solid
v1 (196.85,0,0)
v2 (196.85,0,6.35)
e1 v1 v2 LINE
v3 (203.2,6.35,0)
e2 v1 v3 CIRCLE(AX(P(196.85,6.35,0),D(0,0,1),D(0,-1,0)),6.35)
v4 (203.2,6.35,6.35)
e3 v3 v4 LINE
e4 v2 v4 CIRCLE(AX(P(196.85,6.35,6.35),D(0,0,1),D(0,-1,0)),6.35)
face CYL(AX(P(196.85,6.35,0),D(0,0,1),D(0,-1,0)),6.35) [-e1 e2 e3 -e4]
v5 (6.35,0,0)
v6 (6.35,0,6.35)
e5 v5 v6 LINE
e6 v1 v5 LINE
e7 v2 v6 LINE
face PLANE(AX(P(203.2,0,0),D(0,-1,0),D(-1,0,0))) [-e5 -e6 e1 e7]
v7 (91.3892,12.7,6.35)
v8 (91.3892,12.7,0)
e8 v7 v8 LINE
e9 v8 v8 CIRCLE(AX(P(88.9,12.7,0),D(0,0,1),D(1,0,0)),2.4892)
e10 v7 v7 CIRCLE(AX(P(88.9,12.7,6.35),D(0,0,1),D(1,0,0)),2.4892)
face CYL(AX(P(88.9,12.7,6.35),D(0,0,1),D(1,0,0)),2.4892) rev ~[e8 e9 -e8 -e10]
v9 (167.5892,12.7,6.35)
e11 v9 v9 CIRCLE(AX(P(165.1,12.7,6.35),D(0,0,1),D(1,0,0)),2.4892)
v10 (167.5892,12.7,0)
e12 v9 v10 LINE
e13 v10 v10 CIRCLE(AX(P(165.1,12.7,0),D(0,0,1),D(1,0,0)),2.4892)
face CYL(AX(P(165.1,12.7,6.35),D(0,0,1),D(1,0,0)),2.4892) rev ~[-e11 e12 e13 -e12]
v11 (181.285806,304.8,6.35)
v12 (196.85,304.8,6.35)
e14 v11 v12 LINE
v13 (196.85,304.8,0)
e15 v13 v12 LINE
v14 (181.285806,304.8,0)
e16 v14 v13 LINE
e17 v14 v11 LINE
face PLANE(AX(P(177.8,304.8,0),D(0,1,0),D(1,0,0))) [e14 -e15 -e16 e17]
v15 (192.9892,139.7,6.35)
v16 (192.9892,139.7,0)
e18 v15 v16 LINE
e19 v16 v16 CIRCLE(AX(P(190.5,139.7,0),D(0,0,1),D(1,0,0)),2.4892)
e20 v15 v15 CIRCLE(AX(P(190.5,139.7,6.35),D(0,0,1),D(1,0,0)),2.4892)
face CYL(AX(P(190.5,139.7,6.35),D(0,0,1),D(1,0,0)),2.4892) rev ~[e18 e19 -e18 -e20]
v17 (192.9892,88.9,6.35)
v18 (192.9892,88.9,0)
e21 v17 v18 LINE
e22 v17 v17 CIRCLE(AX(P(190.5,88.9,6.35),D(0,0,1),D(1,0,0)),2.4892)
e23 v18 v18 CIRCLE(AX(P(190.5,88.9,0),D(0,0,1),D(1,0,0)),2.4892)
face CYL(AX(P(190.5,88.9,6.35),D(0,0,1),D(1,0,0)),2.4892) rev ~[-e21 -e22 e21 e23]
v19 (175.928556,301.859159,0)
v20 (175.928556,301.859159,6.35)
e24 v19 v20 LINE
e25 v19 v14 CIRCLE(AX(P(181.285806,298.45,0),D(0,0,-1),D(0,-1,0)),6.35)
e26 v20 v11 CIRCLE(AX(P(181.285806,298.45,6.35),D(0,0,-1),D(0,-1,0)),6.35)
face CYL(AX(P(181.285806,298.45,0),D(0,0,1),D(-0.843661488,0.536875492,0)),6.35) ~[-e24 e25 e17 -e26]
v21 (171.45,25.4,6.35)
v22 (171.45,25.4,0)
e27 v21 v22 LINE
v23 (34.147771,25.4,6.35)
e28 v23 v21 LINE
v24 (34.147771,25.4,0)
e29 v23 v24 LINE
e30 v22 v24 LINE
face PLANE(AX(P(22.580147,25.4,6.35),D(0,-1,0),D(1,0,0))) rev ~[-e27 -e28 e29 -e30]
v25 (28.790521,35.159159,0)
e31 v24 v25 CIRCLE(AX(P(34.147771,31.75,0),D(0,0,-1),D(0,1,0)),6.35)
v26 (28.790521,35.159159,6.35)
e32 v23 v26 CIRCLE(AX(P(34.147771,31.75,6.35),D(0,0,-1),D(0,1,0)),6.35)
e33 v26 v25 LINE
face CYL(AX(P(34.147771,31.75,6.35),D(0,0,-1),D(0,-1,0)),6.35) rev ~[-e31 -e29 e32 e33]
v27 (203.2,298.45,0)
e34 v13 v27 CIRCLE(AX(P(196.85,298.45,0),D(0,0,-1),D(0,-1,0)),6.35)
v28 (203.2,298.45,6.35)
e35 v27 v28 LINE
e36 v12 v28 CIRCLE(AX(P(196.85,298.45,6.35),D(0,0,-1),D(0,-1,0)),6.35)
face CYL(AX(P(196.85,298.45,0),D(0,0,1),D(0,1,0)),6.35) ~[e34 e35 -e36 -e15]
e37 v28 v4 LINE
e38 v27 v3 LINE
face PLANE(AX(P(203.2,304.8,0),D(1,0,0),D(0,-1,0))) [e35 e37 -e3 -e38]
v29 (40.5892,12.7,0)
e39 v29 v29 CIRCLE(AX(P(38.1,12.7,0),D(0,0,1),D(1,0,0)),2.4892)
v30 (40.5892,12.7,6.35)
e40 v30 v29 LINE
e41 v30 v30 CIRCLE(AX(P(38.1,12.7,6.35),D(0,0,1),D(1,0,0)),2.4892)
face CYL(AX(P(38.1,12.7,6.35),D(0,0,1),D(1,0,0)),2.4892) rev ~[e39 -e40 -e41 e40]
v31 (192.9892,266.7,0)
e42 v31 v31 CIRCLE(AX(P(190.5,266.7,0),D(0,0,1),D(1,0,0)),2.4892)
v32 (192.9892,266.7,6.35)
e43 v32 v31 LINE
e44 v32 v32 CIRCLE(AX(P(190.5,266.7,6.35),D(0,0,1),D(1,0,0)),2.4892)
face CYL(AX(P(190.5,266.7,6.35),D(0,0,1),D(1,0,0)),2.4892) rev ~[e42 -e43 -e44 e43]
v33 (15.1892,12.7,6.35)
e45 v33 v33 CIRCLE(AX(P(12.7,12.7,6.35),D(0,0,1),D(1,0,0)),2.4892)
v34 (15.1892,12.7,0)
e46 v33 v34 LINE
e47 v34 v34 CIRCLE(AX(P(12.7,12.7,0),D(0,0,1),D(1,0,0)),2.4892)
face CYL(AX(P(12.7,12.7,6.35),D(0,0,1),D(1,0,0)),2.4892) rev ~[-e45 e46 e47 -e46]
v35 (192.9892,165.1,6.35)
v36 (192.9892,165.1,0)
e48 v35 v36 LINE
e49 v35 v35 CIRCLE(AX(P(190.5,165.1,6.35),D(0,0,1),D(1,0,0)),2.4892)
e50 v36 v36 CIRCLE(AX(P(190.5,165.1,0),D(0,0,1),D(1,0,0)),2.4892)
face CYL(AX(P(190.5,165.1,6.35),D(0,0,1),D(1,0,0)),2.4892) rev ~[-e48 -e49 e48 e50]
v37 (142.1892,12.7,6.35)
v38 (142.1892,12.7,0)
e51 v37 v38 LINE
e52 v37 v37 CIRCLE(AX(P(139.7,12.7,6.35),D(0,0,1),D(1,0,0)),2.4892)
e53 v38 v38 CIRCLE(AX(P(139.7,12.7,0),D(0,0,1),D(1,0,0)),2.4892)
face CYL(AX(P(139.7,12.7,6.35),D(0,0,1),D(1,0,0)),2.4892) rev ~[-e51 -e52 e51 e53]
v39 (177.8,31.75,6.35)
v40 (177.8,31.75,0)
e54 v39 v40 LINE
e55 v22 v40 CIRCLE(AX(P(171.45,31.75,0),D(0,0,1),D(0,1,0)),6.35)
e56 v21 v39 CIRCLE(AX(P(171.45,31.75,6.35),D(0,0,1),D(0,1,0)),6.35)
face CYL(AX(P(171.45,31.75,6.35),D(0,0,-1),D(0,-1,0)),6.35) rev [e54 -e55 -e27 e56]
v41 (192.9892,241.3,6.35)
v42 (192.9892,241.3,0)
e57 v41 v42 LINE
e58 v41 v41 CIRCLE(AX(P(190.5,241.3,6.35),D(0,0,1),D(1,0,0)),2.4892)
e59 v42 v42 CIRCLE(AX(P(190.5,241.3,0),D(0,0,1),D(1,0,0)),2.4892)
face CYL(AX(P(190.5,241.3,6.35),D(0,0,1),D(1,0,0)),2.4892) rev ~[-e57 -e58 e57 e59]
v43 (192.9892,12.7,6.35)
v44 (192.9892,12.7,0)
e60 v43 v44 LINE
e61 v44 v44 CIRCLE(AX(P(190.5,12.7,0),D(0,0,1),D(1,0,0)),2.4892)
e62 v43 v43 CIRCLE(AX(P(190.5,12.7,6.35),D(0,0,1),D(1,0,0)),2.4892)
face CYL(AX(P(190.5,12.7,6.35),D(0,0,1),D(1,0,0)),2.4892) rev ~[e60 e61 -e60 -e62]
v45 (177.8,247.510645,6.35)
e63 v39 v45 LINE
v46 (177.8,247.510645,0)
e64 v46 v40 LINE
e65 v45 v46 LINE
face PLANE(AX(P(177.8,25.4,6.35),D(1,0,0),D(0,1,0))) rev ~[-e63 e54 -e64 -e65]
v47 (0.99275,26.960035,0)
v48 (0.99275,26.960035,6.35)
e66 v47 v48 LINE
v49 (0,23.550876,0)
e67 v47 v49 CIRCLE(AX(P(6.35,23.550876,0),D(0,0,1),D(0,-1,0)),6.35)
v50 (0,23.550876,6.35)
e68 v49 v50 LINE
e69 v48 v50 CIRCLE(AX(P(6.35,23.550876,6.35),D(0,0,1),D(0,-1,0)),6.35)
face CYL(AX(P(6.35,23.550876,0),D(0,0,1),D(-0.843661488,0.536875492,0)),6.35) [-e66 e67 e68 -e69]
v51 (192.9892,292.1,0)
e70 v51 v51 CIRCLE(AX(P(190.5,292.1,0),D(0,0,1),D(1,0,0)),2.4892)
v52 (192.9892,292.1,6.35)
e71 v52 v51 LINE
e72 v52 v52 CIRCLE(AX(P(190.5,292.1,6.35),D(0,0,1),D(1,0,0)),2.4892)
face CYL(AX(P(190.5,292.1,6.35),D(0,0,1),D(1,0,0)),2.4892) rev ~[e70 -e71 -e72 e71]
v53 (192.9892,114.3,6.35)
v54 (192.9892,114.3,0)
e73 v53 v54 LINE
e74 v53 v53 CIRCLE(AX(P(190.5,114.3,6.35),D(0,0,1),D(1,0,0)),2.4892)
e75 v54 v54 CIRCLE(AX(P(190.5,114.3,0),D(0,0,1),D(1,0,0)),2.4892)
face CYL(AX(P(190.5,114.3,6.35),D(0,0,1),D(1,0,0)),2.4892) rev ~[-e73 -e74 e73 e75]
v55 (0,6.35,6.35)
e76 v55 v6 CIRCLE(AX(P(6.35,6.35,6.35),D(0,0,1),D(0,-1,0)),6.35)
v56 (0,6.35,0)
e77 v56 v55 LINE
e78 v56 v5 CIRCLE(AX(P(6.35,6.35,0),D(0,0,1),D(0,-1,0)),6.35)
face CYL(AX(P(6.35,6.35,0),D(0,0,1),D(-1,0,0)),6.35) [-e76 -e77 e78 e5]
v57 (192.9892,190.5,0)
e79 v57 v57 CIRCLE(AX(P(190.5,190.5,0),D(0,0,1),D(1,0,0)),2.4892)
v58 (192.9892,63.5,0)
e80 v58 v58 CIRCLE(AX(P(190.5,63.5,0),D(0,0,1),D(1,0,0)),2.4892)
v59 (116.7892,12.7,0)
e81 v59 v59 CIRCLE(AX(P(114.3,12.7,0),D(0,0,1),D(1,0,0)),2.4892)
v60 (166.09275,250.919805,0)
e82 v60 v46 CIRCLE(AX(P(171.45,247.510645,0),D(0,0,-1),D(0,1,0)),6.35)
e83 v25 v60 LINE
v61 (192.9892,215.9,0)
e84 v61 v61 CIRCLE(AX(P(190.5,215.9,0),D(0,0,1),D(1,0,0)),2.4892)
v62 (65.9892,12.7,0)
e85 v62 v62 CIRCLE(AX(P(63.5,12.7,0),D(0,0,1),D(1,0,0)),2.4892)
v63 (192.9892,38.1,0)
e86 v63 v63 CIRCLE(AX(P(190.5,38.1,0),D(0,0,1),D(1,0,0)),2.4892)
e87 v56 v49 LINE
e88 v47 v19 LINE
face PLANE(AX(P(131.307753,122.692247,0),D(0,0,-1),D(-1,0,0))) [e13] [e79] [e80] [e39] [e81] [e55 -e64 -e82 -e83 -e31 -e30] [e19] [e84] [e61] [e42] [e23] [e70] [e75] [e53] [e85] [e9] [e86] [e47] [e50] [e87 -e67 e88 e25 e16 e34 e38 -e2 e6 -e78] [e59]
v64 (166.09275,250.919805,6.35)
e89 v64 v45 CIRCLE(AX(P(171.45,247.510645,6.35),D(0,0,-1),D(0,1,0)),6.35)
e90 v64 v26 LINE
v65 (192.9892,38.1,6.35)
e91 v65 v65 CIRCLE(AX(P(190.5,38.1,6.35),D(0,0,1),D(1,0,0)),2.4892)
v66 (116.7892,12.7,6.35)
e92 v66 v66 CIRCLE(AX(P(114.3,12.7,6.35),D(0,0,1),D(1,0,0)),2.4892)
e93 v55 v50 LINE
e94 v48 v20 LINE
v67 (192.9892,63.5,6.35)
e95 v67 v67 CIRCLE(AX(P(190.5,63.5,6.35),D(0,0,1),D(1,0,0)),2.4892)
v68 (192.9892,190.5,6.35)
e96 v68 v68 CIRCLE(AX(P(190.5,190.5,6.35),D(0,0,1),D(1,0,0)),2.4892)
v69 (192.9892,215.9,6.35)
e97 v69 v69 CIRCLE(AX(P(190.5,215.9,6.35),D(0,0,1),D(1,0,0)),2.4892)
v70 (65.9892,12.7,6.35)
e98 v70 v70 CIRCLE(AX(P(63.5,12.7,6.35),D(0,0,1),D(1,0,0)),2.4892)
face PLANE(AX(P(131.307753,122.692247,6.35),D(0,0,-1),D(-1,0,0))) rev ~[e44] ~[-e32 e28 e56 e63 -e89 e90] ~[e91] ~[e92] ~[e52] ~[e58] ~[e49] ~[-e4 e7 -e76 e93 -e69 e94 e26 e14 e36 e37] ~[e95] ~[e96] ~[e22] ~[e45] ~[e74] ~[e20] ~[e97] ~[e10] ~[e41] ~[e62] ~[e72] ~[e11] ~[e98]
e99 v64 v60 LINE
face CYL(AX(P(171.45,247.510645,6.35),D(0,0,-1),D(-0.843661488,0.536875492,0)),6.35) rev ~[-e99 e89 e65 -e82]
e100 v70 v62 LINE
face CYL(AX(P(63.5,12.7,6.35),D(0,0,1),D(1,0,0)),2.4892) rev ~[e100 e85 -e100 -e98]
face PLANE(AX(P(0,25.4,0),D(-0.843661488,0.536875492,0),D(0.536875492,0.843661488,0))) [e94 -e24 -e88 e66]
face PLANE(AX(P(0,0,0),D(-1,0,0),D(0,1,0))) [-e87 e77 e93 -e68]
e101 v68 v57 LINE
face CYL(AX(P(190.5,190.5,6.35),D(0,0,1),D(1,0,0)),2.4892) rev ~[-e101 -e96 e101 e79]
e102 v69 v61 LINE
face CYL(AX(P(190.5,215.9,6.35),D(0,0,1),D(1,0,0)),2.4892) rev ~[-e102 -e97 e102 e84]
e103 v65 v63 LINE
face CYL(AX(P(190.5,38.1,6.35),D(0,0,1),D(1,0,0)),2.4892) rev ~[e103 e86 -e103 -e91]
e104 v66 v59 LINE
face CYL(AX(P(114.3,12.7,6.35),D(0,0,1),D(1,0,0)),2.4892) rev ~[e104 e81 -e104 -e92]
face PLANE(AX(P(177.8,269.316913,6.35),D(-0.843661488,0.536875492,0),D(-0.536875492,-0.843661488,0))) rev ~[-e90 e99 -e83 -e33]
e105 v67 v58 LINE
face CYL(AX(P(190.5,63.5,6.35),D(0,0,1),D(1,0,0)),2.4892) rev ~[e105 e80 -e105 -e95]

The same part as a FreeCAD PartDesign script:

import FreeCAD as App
import Part
import Sketcher

V = App.Vector
Q = App.Units.Quantity


def edges_at(feature, points):
    """Names of the edges that pass closest to the given points."""
    edges = feature.Shape.Edges
    near = lambda p: min(range(len(edges)), key=lambda i: edges[i].distToShape(Part.Vertex(*p))[0])
    return sorted({f"Edge{near(p) + 1}" for p in points})


def add_polygon(sketch, points):
    """Adds a closed chain of lines whose ends are joined by coincident constraints."""
    first, n = sketch.GeometryCount, len(points)
    for a, b in zip(points, points[1:] + points[:1]):
        sketch.addGeometry(Part.LineSegment(App.Vector(*a, 0), App.Vector(*b, 0)), False)
    for i in range(n):
        sketch.addConstraint(Sketcher.Constraint("Coincident", first + i, 2, first + (i + 1) % n, 1))

doc = App.newDocument("Part")
body = doc.addObject("PartDesign::Body", "Body")

# Sketch on XY plane
sketch1 = body.newObject("Sketcher::SketchObject", "Sketch")
sketch1.AttachmentSupport = (doc.getObject("XY_Plane"), [""])
sketch1.MapMode = "FlatFace"
add_polygon(sketch1, [(177.8, 304.8), (0, 25.4), (0, 0), (203.2, 0), (203.2, 304.8)])  # lines 0-4
sketch1.addConstraint(Sketcher.Constraint("Vertical", 1))
sketch1.addConstraint(Sketcher.Constraint("Horizontal", 2))
sketch1.addConstraint(Sketcher.Constraint("Vertical", 3))
sketch1.addConstraint(Sketcher.Constraint("Horizontal", 4))
sketch1.addConstraint(Sketcher.Constraint("Coincident", 1, 2, -1, 1))
sketch1.addConstraint(Sketcher.Constraint("Equal", 4, 1))
sketch1.addConstraint(Sketcher.Constraint("DistanceX", 2, 1, 2, 2, Q("8 in")))
sketch1.addConstraint(Sketcher.Constraint("DistanceX", 4, 2, 4, 1, Q("1 in")))
sketch1.addConstraint(Sketcher.Constraint("DistanceY", 3, 1, 3, 2, Q("12 in")))
pad1 = body.newObject("PartDesign::Pad", "Pad")
pad1.Profile = sketch1
pad1.Length = Q("0.25 in")

# Sketch on XY plane
sketch2 = body.newObject("Sketcher::SketchObject", "Sketch001")
sketch2.AttachmentSupport = (doc.getObject("XY_Plane"), [""])
sketch2.MapMode = "FlatFace"
sketch2.AttachmentOffset = App.Placement(V(0, 0, 0.25 * 25.4), App.Rotation())
sketch2.addGeometry(Part.Circle(V(190.5, 12.7, 0), V(0, 0, 1), 2.4892), False)  # 0
sketch2.addGeometry(Part.Circle(V(165.1, 12.7, 0), V(0, 0, 1), 2.4892), False)  # 1
sketch2.addGeometry(Part.Circle(V(139.7, 12.7, 0), V(0, 0, 1), 2.4892), False)  # 2
sketch2.addGeometry(Part.Circle(V(114.3, 12.7, 0), V(0, 0, 1), 2.4892), False)  # 3
sketch2.addGeometry(Part.Circle(V(88.9, 12.7, 0), V(0, 0, 1), 2.4892), False)  # 4
sketch2.addGeometry(Part.Circle(V(63.5, 12.7, 0), V(0, 0, 1), 2.4892), False)  # 5
sketch2.addGeometry(Part.Circle(V(38.1, 12.7, 0), V(0, 0, 1), 2.4892), False)  # 6
sketch2.addGeometry(Part.Circle(V(190.5, 38.1, 0), V(0, 0, 1), 2.4892), False)  # 7
sketch2.addGeometry(Part.Circle(V(190.5, 63.5, 0), V(0, 0, 1), 2.4892), False)  # 8
sketch2.addGeometry(Part.Circle(V(190.5, 88.9, 0), V(0, 0, 1), 2.4892), False)  # 9
sketch2.addGeometry(Part.Circle(V(190.5, 114.3, 0), V(0, 0, 1), 2.4892), False)  # 10
sketch2.addGeometry(Part.Circle(V(190.5, 139.7, 0), V(0, 0, 1), 2.4892), False)  # 11
sketch2.addGeometry(Part.Circle(V(190.5, 165.1, 0), V(0, 0, 1), 2.4892), False)  # 12
sketch2.addGeometry(Part.Circle(V(190.5, 190.5, 0), V(0, 0, 1), 2.4892), False)  # 13
sketch2.addGeometry(Part.Circle(V(190.5, 215.9, 0), V(0, 0, 1), 2.4892), False)  # 14
sketch2.addGeometry(Part.Circle(V(190.5, 241.3, 0), V(0, 0, 1), 2.4892), False)  # 15
sketch2.addGeometry(Part.Circle(V(190.5, 266.7, 0), V(0, 0, 1), 2.4892), False)  # 16
sketch2.addGeometry(Part.Circle(V(190.5, 292.1, 0), V(0, 0, 1), 2.4892), False)  # 17
sketch2.addGeometry(Part.Circle(V(12.7, 12.7, 0), V(0, 0, 1), 2.4892), False)  # 18
add_polygon(sketch2, [(22.580147, 25.4), (177.8, 25.4), (177.8, 269.316913)])  # lines 19-21
sketch2.addConstraint(Sketcher.Constraint("Horizontal", 19))
sketch2.addConstraint(Sketcher.Constraint("Vertical", 20))
sketch2.addConstraint(Sketcher.Constraint("Equal", 0, 1))
sketch2.addConstraint(Sketcher.Constraint("Equal", 1, 2))
sketch2.addConstraint(Sketcher.Constraint("Equal", 2, 3))
sketch2.addConstraint(Sketcher.Constraint("Equal", 3, 4))
sketch2.addConstraint(Sketcher.Constraint("Equal", 4, 5))
sketch2.addConstraint(Sketcher.Constraint("Equal", 5, 6))
sketch2.addConstraint(Sketcher.Constraint("Equal", 6, 7))
sketch2.addConstraint(Sketcher.Constraint("Equal", 7, 8))
sketch2.addConstraint(Sketcher.Constraint("Equal", 8, 9))
sketch2.addConstraint(Sketcher.Constraint("Equal", 9, 10))
sketch2.addConstraint(Sketcher.Constraint("Equal", 10, 11))
sketch2.addConstraint(Sketcher.Constraint("Equal", 11, 12))
sketch2.addConstraint(Sketcher.Constraint("Equal", 12, 13))
sketch2.addConstraint(Sketcher.Constraint("Equal", 13, 14))
sketch2.addConstraint(Sketcher.Constraint("Equal", 14, 15))
sketch2.addConstraint(Sketcher.Constraint("Equal", 15, 16))
sketch2.addConstraint(Sketcher.Constraint("Equal", 16, 17))
sketch2.addConstraint(Sketcher.Constraint("Equal", 17, 18))
sketch2.addConstraint(Sketcher.Constraint("Horizontal", 0, 3, 1, 3))
sketch2.addConstraint(Sketcher.Constraint("Horizontal", 1, 3, 2, 3))
sketch2.addConstraint(Sketcher.Constraint("Horizontal", 2, 3, 3, 3))
sketch2.addConstraint(Sketcher.Constraint("Horizontal", 3, 3, 4, 3))
sketch2.addConstraint(Sketcher.Constraint("Horizontal", 4, 3, 5, 3))
sketch2.addConstraint(Sketcher.Constraint("Horizontal", 5, 3, 6, 3))
sketch2.addConstraint(Sketcher.Constraint("Horizontal", 6, 3, 18, 3))
sketch2.addConstraint(Sketcher.Constraint("Vertical", 0, 3, 7, 3))
sketch2.addConstraint(Sketcher.Constraint("Vertical", 7, 3, 8, 3))
sketch2.addConstraint(Sketcher.Constraint("Vertical", 8, 3, 9, 3))
sketch2.addConstraint(Sketcher.Constraint("Vertical", 9, 3, 10, 3))
sketch2.addConstraint(Sketcher.Constraint("Vertical", 10, 3, 11, 3))
sketch2.addConstraint(Sketcher.Constraint("Vertical", 11, 3, 12, 3))
sketch2.addConstraint(Sketcher.Constraint("Vertical", 12, 3, 13, 3))
sketch2.addConstraint(Sketcher.Constraint("Vertical", 13, 3, 14, 3))
sketch2.addConstraint(Sketcher.Constraint("Vertical", 14, 3, 15, 3))
sketch2.addConstraint(Sketcher.Constraint("Vertical", 15, 3, 16, 3))
sketch2.addConstraint(Sketcher.Constraint("Vertical", 16, 3, 17, 3))
sketch2.addConstraint(Sketcher.Constraint("Diameter", 0, Q("0.196 in")))
sketch2.addConstraint(Sketcher.Constraint("DistanceX", -1, 1, 19, 2, Q("7 in")))
sketch2.addConstraint(Sketcher.Constraint("DistanceY", -1, 1, 19, 2, Q("1 in")))
sketch2.addConstraint(Sketcher.Constraint("DistanceX", 1, 3, 0, 3, Q("1 in")))
sketch2.addConstraint(Sketcher.Constraint("DistanceX", 2, 3, 1, 3, Q("1 in")))
sketch2.addConstraint(Sketcher.Constraint("DistanceX", 3, 3, 2, 3, Q("1 in")))
sketch2.addConstraint(Sketcher.Constraint("DistanceX", 4, 3, 3, 3, Q("1 in")))
sketch2.addConstraint(Sketcher.Constraint("DistanceX", 5, 3, 4, 3, Q("1 in")))
sketch2.addConstraint(Sketcher.Constraint("DistanceX", 6, 3, 5, 3, Q("1 in")))
sketch2.addConstraint(Sketcher.Constraint("DistanceY", 0, 3, 7, 3, Q("1 in")))
sketch2.addConstraint(Sketcher.Constraint("DistanceY", 7, 3, 8, 3, Q("1 in")))
sketch2.addConstraint(Sketcher.Constraint("DistanceY", 8, 3, 9, 3, Q("1 in")))
sketch2.addConstraint(Sketcher.Constraint("DistanceY", 9, 3, 10, 3, Q("1 in")))
sketch2.addConstraint(Sketcher.Constraint("DistanceY", 10, 3, 11, 3, Q("1 in")))
sketch2.addConstraint(Sketcher.Constraint("DistanceY", 11, 3, 12, 3, Q("1 in")))
sketch2.addConstraint(Sketcher.Constraint("DistanceY", 12, 3, 13, 3, Q("1 in")))
sketch2.addConstraint(Sketcher.Constraint("DistanceY", 13, 3, 14, 3, Q("1 in")))
sketch2.addConstraint(Sketcher.Constraint("DistanceY", 14, 3, 15, 3, Q("1 in")))
sketch2.addConstraint(Sketcher.Constraint("DistanceY", 15, 3, 16, 3, Q("1 in")))
sketch2.addConstraint(Sketcher.Constraint("DistanceY", 16, 3, 17, 3, Q("1 in")))
sketch2.addConstraint(Sketcher.Constraint("DistanceX", 18, 3, 6, 3, Q("1 in")))
sketch2.addConstraint(Sketcher.Constraint("DistanceX", -1, 1, 0, 3, Q("7.5 in")))
sketch2.addConstraint(Sketcher.Constraint("DistanceY", -1, 1, 0, 3, Q("0.5 in")))
sketch2.addConstraint(Sketcher.Constraint("Distance", 21, Q("289.117041 mm")))
sketch2.addConstraint(Sketcher.Constraint("DistanceX", 19, 1, 19, 2, Q("155.219853 mm")))
pocket1 = body.newObject("PartDesign::Pocket", "Pocket")
pocket1.Profile = sketch2
pocket1.Type = "ThroughAll"
doc.recompute()

fillet = body.newObject("PartDesign::Fillet", "Fillet")
fillet.Base = (pocket1, edges_at(pocket1, [
    (22.58, 25.4, 3.175),
    (177.8, 269.317, 3.175),
    (177.8, 25.4, 3.175),
    (203.2, 0, 3.175),
    (0, 0, 3.175),
    (0, 25.4, 3.175),
    (177.8, 304.8, 3.175),
    (203.2, 304.8, 3.175),
]))
fillet.Radius = Q("0.25 in")

doc.recompute()
